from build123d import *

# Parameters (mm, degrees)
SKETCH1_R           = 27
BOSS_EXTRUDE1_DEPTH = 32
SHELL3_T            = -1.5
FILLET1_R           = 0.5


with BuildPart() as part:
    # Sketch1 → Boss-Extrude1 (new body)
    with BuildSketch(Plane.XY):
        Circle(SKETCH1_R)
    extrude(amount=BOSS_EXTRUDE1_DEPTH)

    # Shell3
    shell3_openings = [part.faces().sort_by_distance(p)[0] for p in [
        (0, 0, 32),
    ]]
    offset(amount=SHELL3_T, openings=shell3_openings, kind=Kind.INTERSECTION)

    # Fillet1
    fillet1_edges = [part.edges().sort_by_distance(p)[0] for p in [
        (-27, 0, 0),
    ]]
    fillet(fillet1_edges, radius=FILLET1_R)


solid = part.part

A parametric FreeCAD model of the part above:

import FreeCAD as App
import Part
import Sketcher

V = App.Vector


def edges_at(feature, points):
    """Names of the edges that pass closest to the given points."""
    edges = feature.Shape.Edges
    near = lambda p: min(range(len(edges)), key=lambda i: edges[i].distToShape(Part.Vertex(*p))[0])
    return sorted({f"Edge{near(p) + 1}" for p in points})


def faces_at(feature, points):
    """Names of the faces that lie closest to the given points."""
    faces = feature.Shape.Faces
    near = lambda p: min(range(len(faces)), key=lambda i: faces[i].distToShape(Part.Vertex(*p))[0])
    return sorted({f"Face{near(p) + 1}" for p in points})

doc = App.newDocument("Part")
body = doc.addObject("PartDesign::Body", "Body")

# Sketch on XY plane
sketch1 = body.newObject("Sketcher::SketchObject", "Sketch")
sketch1.AttachmentSupport = (doc.getObject("XY_Plane"), [""])
sketch1.MapMode = "FlatFace"
sketch1.addGeometry(Part.Circle(V(0, 0, 0), V(0, 0, 1), 27), False)
sketch1.addConstraint([
    Sketcher.Constraint("Coincident", 0, 3, -1, 1),
    Sketcher.Constraint("Diameter", 0, 54.0),
])
pad1 = body.newObject("PartDesign::Pad", "Pad")
pad1.Profile = sketch1
pad1.Length = 32
doc.recompute()

thickness = body.newObject("PartDesign::Thickness", "Thickness")
thickness.Base = (pad1, faces_at(pad1, [(0, 0, 32)]))
thickness.Value = 1.5
thickness.Reversed = True
thickness.Join = "Intersection"
doc.recompute()

fillet = body.newObject("PartDesign::Fillet", "Fillet")
fillet.Base = (thickness, edges_at(thickness, [(-27, 0, 0)]))
fillet.Radius = 0.5

doc.recompute()
